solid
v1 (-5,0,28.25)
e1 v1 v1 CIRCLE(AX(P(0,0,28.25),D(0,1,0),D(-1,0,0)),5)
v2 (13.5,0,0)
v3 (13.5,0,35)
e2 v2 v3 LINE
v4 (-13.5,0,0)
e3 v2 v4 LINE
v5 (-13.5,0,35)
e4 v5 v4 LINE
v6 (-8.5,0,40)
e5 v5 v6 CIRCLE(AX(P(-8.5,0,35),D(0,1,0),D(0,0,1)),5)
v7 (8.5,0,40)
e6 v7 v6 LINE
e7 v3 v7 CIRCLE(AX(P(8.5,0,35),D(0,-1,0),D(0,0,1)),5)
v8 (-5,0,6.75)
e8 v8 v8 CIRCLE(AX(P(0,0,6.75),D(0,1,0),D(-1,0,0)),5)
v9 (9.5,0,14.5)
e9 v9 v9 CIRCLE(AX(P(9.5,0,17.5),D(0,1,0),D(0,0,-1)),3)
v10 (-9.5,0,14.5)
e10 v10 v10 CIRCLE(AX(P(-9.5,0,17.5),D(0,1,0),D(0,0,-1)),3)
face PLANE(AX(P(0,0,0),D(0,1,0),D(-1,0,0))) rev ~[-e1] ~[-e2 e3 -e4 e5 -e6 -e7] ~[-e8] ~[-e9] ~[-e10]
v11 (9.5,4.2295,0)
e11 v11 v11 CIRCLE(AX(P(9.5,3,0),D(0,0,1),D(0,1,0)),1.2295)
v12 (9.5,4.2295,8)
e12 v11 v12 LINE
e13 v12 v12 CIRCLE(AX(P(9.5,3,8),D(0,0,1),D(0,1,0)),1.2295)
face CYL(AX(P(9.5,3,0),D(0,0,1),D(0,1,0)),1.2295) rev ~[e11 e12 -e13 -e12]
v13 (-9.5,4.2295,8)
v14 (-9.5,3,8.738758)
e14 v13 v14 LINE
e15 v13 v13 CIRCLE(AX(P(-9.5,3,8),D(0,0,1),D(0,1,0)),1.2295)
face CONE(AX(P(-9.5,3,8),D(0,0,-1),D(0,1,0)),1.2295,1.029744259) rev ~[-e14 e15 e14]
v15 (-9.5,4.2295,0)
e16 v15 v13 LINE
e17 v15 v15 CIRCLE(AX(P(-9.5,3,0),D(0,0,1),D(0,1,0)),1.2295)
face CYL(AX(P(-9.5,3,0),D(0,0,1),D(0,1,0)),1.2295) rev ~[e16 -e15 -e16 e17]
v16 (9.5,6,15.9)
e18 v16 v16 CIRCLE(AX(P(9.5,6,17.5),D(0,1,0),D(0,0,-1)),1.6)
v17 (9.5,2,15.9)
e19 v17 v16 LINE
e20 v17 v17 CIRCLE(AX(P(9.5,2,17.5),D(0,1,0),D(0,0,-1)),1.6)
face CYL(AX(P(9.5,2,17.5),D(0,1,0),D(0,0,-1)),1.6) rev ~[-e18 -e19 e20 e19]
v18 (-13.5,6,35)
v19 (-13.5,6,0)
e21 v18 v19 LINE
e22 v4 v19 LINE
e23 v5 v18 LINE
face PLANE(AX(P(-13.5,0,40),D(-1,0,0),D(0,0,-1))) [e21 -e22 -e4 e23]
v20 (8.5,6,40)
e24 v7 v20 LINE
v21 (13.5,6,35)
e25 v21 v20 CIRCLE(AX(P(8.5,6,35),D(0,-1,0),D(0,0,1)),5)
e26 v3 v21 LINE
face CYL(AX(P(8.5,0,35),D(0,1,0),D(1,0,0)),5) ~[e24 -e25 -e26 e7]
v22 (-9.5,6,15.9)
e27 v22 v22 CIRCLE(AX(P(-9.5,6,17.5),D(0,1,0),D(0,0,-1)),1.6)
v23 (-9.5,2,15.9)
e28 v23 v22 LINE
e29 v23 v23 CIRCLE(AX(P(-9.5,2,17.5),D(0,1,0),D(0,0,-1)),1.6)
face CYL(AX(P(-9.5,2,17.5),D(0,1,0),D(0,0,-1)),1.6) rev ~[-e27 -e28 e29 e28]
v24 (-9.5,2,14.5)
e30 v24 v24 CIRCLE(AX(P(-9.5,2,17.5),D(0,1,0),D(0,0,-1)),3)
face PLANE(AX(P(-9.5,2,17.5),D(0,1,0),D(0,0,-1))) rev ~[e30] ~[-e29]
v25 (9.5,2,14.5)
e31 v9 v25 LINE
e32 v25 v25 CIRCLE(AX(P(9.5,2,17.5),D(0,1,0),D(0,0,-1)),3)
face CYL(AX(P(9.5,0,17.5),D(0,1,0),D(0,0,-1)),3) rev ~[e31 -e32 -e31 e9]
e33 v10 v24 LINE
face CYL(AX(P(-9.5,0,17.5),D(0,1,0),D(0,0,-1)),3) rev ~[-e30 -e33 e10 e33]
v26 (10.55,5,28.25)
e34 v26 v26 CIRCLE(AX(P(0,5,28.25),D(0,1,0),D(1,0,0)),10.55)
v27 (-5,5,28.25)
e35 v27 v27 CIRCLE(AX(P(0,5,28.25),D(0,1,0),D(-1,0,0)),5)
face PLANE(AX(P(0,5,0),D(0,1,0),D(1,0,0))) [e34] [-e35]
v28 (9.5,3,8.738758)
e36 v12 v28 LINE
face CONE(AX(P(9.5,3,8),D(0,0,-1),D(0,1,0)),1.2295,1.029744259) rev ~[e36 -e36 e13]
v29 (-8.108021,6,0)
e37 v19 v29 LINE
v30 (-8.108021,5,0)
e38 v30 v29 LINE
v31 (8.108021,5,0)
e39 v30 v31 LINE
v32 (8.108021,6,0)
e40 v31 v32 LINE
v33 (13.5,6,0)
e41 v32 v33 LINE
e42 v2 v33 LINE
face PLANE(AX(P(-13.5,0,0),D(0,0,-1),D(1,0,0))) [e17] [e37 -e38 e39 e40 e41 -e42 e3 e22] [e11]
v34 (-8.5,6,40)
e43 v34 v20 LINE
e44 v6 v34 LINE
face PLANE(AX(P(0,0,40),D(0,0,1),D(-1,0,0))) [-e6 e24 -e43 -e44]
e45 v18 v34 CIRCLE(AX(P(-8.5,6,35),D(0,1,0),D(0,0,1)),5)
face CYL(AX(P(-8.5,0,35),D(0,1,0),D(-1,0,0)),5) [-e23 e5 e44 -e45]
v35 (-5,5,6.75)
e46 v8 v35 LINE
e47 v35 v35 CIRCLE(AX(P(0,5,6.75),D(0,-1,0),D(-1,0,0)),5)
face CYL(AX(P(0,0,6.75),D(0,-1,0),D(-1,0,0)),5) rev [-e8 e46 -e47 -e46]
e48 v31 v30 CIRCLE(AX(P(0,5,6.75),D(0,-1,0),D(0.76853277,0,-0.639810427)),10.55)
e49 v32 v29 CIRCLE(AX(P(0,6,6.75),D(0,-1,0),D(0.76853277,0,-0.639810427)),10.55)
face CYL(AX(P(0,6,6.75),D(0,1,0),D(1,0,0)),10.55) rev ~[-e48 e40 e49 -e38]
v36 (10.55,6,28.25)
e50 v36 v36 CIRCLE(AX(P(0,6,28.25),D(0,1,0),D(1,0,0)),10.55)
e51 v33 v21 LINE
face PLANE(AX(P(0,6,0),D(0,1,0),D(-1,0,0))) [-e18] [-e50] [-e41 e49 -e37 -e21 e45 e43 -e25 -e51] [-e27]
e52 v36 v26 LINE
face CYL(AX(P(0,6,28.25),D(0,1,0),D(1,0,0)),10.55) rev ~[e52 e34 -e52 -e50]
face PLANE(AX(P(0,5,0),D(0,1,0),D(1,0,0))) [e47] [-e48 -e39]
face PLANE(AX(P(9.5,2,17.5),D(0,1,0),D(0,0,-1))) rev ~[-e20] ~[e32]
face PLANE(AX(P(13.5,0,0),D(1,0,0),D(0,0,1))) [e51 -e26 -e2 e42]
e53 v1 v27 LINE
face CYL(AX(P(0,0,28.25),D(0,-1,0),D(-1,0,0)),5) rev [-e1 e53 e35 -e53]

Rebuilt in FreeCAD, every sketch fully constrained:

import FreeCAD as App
import Part
import Sketcher

V = App.Vector
Q = App.Units.Quantity


def edges_at(feature, points):
    """Names of the edges that pass closest to the given points."""
    edges = feature.Shape.Edges
    near = lambda p: min(range(len(edges)), key=lambda i: edges[i].distToShape(Part.Vertex(*p))[0])
    return sorted({f"Edge{near(p) + 1}" for p in points})

doc = App.newDocument("Part")
body = doc.addObject("PartDesign::Body", "Body")

# Sketch on XZ plane
sketch1 = doc.addObject("Sketcher::SketchObject", "Sketch")
body.addObject(sketch1)
sketch1.AttachmentSupport = (doc.XZ_Plane, [""])
sketch1.MapMode = "FlatFace"
sketch1.addGeometry([
    Part.LineSegment(V(-14, 0, 0), V(-14, 40, 0)),  # 0
    Part.LineSegment(V(-14, 40, 0), V(14, 40, 0)),  # 1
    Part.LineSegment(V(14, 40, 0), V(14, 0, 0)),  # 2
    Part.LineSegment(V(14, 0, 0), V(-14, 0, 0)),  # 3
    Part.Circle(V(0, 7, 0), V(0, 0, 1), 5),  # 4
    Part.Circle(V(0, 28, 0), V(0, 0, 1), 5),  # 5
], False)
sketch1.addConstraint([
    Sketcher.Constraint("Coincident", 0, 2, 1, 1),
    Sketcher.Constraint("Coincident", 1, 2, 2, 1),
    Sketcher.Constraint("Coincident", 2, 2, 3, 1),
    Sketcher.Constraint("Coincident", 3, 2, 0, 1),
    Sketcher.Constraint("Vertical", 0),
    Sketcher.Constraint("Horizontal", 1),
    Sketcher.Constraint("Vertical", 2),
    Sketcher.Constraint("Horizontal", 3),
    Sketcher.Constraint("Equal", 4, 5),
    Sketcher.Constraint("Symmetric", 2, 2, 3, 2, -1, 1),
    Sketcher.Constraint("PointOnObject", 4, 3, -2),
    Sketcher.Constraint("PointOnObject", 5, 3, -2),
    Sketcher.Constraint("Diameter", 4, Q("10 mm")),
    Sketcher.Constraint("DistanceX", 1, 1, 1, 2, Q("27 mm")),
    Sketcher.Constraint("DistanceY", 0, 1, 0, 2, Q("40 mm")),
    Sketcher.Constraint("DistanceY", 4, 3, 5, 3, Q("21.5 mm")),
    Sketcher.Constraint("DistanceY", -1, 1, 4, 3, Q("6.75 mm")),
])
pad1 = doc.addObject("PartDesign::Pad", "Pad")
body.addObject(pad1)
pad1.Profile = sketch1
pad1.Length = 6
pad1.Reversed = True

# Sketch on XY plane
sketch2 = doc.addObject("Sketcher::SketchObject", "Sketch001")
body.addObject(sketch2)
sketch2.AttachmentSupport = (doc.XY_Plane, [""])
sketch2.MapMode = "FlatFace"
sketch2.addGeometry([
    Part.Circle(V(-9.5, 3, 0), V(0, 0, 1), 1.2),
    Part.Circle(V(9.5, 3, 0), V(0, 0, 1), 1.2),
], False)
sketch2.addConstraint([
    Sketcher.Constraint("Equal", 0, 1),
    Sketcher.Constraint("Symmetric", 0, 3, 1, 3, -2),
    Sketcher.Constraint("Diameter", 0, Q("2.459 mm")),
    Sketcher.Constraint("DistanceY", -1, 1, 0, 3, Q("3 mm")),
    Sketcher.Constraint("DistanceX", 0, 3, 1, 3, Q("19 mm")),
])
doc.recompute()
hole = doc.addObject("PartDesign::Hole", "Hole")
body.addObject(hole)
hole.Profile = sketch2
hole.ThreadType = "None"
hole.Diameter = 2.459
hole.DepthType = "Dimension"
hole.Depth = 8
hole.DrillPoint = "Angled"
hole.DrillPointAngle = 118
hole.Reversed = True

# Sketch on XZ plane
sketch3 = doc.addObject("Sketcher::SketchObject", "Sketch002")
body.addObject(sketch3)
sketch3.AttachmentSupport = (doc.XZ_Plane, [""])
sketch3.MapMode = "FlatFace"
sketch3.AttachmentOffset = App.Placement(V(0, 0, -6), App.Rotation())
sketch3.addGeometry([
    Part.Circle(V(0, 28, 0), V(0, 0, 1), 11),
    Part.Circle(V(0, 28, 0), V(0, 0, 1), 5),
    Part.Circle(V(0, 7, 0), V(0, 0, 1), 11),
    Part.Circle(V(0, 7, 0), V(0, 0, 1), 5),
], False)
sketch3.addConstraint([
    Sketcher.Constraint("Coincident", 1, 3, 0, 3),
    Sketcher.Constraint("Coincident", 3, 3, 2, 3),
    Sketcher.Constraint("Equal", 0, 2),
    Sketcher.Constraint("Equal", 1, 3),
    Sketcher.Constraint("PointOnObject", 0, 3, -2),
    Sketcher.Constraint("PointOnObject", 2, 3, -2),
    Sketcher.Constraint("Diameter", 0, Q("21.1 mm")),
    Sketcher.Constraint("Diameter", 1, Q("10 mm")),
    Sketcher.Constraint("DistanceY", 2, 3, 0, 3, Q("21.5 mm")),
    Sketcher.Constraint("DistanceY", -1, 1, 0, 3, Q("28.25 mm")),
])
pocket1 = doc.addObject("PartDesign::Pocket", "Pocket")
body.addObject(pocket1)
pocket1.Profile = sketch3
pocket1.Length = 1
pocket1.Reversed = True
doc.recompute()

fillet = doc.addObject("PartDesign::Fillet", "Fillet")
body.addObject(fillet)
fillet.Base = (pocket1, edges_at(pocket1, [(-13.5, 3, 40), (13.5, 3, 40)]))
fillet.Radius = 5

# Sketch on XZ plane
sketch4 = doc.addObject("Sketcher::SketchObject", "Sketch003")
body.addObject(sketch4)
sketch4.AttachmentSupport = (doc.XZ_Plane, [""])
sketch4.MapMode = "FlatFace"
sketch4.addGeometry([
    Part.Circle(V(-9.5, 17.5, 0), V(0, 0, 1), 1.6),
    Part.Circle(V(9.5, 17.5, 0), V(0, 0, 1), 1.6),
], False)
sketch4.addConstraint([
    Sketcher.Constraint("Equal", 0, 1),
    Sketcher.Constraint("Symmetric", 0, 3, 1, 3, -2),
    Sketcher.Constraint("Diameter", 0, Q("3.2 mm")),
    Sketcher.Constraint("DistanceX", 0, 3, 1, 3, Q("19 mm")),
    Sketcher.Constraint("DistanceY", -1, 1, 0, 3, Q("17.5 mm")),
])
doc.recompute()
hole2 = doc.addObject("PartDesign::Hole", "Hole001")
body.addObject(hole2)
hole2.Profile = sketch4
hole2.ThreadType = "None"
hole2.Diameter = 3.2
hole2.DepthType = "Dimension"
hole2.Depth = 8
hole2.DrillPoint = "Angled"
hole2.DrillPointAngle = 118
hole2.HoleCutType = "Counterbore"
hole2.HoleCutDiameter = 6
hole2.HoleCutDepth = 2

doc.recompute()
